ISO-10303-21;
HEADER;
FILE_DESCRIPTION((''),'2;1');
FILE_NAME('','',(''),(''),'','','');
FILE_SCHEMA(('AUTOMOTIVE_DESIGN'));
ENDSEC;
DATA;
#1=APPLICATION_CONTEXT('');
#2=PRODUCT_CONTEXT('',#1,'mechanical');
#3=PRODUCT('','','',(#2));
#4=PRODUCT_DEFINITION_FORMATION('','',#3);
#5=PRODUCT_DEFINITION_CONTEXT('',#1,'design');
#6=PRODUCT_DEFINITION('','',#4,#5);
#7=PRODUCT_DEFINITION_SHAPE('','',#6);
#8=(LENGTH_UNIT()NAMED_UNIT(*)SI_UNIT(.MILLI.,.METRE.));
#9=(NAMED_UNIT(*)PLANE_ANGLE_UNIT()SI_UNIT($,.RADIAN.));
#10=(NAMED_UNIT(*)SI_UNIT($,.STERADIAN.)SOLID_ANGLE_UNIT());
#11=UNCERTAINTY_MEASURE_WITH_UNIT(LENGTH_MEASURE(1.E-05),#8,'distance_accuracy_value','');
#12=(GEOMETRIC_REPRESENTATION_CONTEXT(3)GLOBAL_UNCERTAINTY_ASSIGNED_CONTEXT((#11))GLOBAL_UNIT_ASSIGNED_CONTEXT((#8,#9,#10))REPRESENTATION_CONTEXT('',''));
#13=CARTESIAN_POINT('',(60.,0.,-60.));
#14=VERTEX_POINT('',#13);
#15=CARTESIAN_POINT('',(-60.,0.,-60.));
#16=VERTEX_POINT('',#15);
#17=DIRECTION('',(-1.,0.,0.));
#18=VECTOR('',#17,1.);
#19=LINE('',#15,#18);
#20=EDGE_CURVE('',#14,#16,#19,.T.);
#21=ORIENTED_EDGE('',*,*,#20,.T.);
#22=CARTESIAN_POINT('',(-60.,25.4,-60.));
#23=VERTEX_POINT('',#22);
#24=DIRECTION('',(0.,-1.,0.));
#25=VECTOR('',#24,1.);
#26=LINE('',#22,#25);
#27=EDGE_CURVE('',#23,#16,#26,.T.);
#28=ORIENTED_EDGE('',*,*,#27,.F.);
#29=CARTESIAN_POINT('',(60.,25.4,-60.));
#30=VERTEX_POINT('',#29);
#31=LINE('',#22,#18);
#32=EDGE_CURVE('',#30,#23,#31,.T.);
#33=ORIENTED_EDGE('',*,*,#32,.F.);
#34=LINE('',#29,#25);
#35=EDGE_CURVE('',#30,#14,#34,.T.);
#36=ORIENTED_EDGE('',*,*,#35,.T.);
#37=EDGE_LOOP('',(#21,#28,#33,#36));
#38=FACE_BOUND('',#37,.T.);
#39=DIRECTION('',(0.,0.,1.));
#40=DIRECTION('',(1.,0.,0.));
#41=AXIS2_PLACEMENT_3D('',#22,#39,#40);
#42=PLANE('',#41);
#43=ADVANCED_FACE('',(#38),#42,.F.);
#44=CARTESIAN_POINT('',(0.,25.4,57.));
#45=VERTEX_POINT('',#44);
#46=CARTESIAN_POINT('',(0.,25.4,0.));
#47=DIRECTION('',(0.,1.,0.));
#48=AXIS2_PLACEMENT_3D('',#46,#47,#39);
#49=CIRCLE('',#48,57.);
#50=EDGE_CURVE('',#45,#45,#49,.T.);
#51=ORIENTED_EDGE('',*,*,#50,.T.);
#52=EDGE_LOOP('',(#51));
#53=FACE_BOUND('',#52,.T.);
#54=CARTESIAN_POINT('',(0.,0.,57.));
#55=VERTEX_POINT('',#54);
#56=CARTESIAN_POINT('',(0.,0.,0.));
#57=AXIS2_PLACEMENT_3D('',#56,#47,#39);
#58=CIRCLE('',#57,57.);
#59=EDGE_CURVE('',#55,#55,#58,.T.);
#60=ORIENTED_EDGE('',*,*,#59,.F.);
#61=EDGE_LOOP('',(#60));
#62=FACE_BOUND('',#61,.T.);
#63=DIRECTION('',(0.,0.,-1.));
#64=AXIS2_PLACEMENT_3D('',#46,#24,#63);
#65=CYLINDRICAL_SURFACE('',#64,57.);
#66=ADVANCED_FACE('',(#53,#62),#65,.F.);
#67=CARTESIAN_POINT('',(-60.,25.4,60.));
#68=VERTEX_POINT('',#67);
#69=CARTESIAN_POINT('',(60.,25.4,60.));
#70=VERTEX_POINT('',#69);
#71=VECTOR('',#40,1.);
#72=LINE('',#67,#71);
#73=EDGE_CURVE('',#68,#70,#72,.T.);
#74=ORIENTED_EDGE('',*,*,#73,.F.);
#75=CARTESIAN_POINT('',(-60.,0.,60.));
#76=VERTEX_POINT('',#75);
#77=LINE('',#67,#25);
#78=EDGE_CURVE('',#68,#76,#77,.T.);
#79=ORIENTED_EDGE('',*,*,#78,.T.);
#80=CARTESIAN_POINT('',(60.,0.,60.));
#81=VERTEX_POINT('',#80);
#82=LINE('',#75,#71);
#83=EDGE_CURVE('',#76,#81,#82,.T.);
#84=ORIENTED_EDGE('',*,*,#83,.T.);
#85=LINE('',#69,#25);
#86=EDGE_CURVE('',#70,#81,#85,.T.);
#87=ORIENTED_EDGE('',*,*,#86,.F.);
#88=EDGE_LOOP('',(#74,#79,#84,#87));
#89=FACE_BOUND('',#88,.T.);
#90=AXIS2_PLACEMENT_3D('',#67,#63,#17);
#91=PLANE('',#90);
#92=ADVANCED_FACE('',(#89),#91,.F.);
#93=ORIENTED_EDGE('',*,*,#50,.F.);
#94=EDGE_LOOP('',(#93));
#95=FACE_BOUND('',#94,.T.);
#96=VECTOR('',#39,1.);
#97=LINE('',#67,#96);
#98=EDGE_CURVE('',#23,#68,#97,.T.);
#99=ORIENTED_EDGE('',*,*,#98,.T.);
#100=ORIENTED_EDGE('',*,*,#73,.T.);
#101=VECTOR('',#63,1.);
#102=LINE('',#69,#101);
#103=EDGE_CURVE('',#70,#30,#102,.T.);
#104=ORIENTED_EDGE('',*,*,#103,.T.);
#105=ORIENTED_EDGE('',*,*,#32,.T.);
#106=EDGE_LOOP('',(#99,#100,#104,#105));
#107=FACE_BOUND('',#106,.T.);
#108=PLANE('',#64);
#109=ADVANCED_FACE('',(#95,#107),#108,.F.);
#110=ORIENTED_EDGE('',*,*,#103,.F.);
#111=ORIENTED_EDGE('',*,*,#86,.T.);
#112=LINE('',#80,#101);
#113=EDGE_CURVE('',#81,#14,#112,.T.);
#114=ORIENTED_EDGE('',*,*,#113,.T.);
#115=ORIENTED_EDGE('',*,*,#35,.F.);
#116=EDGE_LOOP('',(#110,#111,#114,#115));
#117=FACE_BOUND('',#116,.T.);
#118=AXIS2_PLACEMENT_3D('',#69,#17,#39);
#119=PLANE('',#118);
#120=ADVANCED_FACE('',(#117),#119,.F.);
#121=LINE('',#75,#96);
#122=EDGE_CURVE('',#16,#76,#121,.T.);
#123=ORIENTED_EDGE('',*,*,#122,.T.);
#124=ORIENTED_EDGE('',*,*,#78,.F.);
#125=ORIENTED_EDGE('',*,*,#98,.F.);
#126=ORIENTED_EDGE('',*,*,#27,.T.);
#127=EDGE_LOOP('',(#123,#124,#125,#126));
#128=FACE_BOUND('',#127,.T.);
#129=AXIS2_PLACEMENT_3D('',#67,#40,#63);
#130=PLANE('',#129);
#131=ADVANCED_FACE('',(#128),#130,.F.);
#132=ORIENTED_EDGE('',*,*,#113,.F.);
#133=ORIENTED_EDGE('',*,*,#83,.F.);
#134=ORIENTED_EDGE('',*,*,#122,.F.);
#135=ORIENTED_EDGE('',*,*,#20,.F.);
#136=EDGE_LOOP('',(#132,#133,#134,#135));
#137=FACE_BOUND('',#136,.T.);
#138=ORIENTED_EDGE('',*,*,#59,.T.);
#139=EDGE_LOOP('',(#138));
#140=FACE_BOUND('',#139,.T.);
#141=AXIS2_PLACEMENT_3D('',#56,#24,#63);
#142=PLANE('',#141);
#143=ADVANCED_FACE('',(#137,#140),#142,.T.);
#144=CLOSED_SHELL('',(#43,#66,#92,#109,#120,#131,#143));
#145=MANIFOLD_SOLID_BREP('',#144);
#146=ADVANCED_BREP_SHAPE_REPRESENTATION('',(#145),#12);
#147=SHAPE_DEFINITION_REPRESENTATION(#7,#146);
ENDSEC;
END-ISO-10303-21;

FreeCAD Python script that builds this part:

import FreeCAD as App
import Part
import Sketcher

V = App.Vector

doc = App.newDocument("Part")
body = doc.addObject("PartDesign::Body", "Body")

# Sketch on XZ plane
sketch1 = doc.addObject("Sketcher::SketchObject", "Sketch")
body.addObject(sketch1)
sketch1.AttachmentSupport = (doc.XZ_Plane, [""])
sketch1.MapMode = "FlatFace"
sketch1.addGeometry([
    Part.LineSegment(V(-60, -60, 0), V(-60, 60, 0)),  # 0
    Part.LineSegment(V(-60, 60, 0), V(60, 60, 0)),  # 1
    Part.LineSegment(V(60, 60, 0), V(60, -60, 0)),  # 2
    Part.LineSegment(V(60, -60, 0), V(-60, -60, 0)),  # 3
    Part.Circle(V(0, 0, 0), V(0, 0, 1), 57),  # 4
], False)
sketch1.addConstraint([
    Sketcher.Constraint("Coincident", 0, 2, 1, 1),
    Sketcher.Constraint("Coincident", 1, 2, 2, 1),
    Sketcher.Constraint("Coincident", 2, 2, 3, 1),
    Sketcher.Constraint("Coincident", 3, 2, 0, 1),
    Sketcher.Constraint("Vertical", 0),
    Sketcher.Constraint("Horizontal", 1),
    Sketcher.Constraint("Vertical", 2),
    Sketcher.Constraint("Horizontal", 3),
    Sketcher.Constraint("Coincident", 4, 3, -1, 1),
    Sketcher.Constraint("Symmetric", 0, 2, 2, 2, -1, 1),
    Sketcher.Constraint("Equal", 3, 0),
    Sketcher.Constraint("Diameter", 4, 114.0),
    Sketcher.Constraint("DistanceX", 1, 1, 1, 2, 120.0),
])
pad1 = doc.addObject("PartDesign::Pad", "Pad")
body.addObject(pad1)
pad1.Profile = sketch1
pad1.Length = 25.4
pad1.Reversed = True

doc.recompute()
